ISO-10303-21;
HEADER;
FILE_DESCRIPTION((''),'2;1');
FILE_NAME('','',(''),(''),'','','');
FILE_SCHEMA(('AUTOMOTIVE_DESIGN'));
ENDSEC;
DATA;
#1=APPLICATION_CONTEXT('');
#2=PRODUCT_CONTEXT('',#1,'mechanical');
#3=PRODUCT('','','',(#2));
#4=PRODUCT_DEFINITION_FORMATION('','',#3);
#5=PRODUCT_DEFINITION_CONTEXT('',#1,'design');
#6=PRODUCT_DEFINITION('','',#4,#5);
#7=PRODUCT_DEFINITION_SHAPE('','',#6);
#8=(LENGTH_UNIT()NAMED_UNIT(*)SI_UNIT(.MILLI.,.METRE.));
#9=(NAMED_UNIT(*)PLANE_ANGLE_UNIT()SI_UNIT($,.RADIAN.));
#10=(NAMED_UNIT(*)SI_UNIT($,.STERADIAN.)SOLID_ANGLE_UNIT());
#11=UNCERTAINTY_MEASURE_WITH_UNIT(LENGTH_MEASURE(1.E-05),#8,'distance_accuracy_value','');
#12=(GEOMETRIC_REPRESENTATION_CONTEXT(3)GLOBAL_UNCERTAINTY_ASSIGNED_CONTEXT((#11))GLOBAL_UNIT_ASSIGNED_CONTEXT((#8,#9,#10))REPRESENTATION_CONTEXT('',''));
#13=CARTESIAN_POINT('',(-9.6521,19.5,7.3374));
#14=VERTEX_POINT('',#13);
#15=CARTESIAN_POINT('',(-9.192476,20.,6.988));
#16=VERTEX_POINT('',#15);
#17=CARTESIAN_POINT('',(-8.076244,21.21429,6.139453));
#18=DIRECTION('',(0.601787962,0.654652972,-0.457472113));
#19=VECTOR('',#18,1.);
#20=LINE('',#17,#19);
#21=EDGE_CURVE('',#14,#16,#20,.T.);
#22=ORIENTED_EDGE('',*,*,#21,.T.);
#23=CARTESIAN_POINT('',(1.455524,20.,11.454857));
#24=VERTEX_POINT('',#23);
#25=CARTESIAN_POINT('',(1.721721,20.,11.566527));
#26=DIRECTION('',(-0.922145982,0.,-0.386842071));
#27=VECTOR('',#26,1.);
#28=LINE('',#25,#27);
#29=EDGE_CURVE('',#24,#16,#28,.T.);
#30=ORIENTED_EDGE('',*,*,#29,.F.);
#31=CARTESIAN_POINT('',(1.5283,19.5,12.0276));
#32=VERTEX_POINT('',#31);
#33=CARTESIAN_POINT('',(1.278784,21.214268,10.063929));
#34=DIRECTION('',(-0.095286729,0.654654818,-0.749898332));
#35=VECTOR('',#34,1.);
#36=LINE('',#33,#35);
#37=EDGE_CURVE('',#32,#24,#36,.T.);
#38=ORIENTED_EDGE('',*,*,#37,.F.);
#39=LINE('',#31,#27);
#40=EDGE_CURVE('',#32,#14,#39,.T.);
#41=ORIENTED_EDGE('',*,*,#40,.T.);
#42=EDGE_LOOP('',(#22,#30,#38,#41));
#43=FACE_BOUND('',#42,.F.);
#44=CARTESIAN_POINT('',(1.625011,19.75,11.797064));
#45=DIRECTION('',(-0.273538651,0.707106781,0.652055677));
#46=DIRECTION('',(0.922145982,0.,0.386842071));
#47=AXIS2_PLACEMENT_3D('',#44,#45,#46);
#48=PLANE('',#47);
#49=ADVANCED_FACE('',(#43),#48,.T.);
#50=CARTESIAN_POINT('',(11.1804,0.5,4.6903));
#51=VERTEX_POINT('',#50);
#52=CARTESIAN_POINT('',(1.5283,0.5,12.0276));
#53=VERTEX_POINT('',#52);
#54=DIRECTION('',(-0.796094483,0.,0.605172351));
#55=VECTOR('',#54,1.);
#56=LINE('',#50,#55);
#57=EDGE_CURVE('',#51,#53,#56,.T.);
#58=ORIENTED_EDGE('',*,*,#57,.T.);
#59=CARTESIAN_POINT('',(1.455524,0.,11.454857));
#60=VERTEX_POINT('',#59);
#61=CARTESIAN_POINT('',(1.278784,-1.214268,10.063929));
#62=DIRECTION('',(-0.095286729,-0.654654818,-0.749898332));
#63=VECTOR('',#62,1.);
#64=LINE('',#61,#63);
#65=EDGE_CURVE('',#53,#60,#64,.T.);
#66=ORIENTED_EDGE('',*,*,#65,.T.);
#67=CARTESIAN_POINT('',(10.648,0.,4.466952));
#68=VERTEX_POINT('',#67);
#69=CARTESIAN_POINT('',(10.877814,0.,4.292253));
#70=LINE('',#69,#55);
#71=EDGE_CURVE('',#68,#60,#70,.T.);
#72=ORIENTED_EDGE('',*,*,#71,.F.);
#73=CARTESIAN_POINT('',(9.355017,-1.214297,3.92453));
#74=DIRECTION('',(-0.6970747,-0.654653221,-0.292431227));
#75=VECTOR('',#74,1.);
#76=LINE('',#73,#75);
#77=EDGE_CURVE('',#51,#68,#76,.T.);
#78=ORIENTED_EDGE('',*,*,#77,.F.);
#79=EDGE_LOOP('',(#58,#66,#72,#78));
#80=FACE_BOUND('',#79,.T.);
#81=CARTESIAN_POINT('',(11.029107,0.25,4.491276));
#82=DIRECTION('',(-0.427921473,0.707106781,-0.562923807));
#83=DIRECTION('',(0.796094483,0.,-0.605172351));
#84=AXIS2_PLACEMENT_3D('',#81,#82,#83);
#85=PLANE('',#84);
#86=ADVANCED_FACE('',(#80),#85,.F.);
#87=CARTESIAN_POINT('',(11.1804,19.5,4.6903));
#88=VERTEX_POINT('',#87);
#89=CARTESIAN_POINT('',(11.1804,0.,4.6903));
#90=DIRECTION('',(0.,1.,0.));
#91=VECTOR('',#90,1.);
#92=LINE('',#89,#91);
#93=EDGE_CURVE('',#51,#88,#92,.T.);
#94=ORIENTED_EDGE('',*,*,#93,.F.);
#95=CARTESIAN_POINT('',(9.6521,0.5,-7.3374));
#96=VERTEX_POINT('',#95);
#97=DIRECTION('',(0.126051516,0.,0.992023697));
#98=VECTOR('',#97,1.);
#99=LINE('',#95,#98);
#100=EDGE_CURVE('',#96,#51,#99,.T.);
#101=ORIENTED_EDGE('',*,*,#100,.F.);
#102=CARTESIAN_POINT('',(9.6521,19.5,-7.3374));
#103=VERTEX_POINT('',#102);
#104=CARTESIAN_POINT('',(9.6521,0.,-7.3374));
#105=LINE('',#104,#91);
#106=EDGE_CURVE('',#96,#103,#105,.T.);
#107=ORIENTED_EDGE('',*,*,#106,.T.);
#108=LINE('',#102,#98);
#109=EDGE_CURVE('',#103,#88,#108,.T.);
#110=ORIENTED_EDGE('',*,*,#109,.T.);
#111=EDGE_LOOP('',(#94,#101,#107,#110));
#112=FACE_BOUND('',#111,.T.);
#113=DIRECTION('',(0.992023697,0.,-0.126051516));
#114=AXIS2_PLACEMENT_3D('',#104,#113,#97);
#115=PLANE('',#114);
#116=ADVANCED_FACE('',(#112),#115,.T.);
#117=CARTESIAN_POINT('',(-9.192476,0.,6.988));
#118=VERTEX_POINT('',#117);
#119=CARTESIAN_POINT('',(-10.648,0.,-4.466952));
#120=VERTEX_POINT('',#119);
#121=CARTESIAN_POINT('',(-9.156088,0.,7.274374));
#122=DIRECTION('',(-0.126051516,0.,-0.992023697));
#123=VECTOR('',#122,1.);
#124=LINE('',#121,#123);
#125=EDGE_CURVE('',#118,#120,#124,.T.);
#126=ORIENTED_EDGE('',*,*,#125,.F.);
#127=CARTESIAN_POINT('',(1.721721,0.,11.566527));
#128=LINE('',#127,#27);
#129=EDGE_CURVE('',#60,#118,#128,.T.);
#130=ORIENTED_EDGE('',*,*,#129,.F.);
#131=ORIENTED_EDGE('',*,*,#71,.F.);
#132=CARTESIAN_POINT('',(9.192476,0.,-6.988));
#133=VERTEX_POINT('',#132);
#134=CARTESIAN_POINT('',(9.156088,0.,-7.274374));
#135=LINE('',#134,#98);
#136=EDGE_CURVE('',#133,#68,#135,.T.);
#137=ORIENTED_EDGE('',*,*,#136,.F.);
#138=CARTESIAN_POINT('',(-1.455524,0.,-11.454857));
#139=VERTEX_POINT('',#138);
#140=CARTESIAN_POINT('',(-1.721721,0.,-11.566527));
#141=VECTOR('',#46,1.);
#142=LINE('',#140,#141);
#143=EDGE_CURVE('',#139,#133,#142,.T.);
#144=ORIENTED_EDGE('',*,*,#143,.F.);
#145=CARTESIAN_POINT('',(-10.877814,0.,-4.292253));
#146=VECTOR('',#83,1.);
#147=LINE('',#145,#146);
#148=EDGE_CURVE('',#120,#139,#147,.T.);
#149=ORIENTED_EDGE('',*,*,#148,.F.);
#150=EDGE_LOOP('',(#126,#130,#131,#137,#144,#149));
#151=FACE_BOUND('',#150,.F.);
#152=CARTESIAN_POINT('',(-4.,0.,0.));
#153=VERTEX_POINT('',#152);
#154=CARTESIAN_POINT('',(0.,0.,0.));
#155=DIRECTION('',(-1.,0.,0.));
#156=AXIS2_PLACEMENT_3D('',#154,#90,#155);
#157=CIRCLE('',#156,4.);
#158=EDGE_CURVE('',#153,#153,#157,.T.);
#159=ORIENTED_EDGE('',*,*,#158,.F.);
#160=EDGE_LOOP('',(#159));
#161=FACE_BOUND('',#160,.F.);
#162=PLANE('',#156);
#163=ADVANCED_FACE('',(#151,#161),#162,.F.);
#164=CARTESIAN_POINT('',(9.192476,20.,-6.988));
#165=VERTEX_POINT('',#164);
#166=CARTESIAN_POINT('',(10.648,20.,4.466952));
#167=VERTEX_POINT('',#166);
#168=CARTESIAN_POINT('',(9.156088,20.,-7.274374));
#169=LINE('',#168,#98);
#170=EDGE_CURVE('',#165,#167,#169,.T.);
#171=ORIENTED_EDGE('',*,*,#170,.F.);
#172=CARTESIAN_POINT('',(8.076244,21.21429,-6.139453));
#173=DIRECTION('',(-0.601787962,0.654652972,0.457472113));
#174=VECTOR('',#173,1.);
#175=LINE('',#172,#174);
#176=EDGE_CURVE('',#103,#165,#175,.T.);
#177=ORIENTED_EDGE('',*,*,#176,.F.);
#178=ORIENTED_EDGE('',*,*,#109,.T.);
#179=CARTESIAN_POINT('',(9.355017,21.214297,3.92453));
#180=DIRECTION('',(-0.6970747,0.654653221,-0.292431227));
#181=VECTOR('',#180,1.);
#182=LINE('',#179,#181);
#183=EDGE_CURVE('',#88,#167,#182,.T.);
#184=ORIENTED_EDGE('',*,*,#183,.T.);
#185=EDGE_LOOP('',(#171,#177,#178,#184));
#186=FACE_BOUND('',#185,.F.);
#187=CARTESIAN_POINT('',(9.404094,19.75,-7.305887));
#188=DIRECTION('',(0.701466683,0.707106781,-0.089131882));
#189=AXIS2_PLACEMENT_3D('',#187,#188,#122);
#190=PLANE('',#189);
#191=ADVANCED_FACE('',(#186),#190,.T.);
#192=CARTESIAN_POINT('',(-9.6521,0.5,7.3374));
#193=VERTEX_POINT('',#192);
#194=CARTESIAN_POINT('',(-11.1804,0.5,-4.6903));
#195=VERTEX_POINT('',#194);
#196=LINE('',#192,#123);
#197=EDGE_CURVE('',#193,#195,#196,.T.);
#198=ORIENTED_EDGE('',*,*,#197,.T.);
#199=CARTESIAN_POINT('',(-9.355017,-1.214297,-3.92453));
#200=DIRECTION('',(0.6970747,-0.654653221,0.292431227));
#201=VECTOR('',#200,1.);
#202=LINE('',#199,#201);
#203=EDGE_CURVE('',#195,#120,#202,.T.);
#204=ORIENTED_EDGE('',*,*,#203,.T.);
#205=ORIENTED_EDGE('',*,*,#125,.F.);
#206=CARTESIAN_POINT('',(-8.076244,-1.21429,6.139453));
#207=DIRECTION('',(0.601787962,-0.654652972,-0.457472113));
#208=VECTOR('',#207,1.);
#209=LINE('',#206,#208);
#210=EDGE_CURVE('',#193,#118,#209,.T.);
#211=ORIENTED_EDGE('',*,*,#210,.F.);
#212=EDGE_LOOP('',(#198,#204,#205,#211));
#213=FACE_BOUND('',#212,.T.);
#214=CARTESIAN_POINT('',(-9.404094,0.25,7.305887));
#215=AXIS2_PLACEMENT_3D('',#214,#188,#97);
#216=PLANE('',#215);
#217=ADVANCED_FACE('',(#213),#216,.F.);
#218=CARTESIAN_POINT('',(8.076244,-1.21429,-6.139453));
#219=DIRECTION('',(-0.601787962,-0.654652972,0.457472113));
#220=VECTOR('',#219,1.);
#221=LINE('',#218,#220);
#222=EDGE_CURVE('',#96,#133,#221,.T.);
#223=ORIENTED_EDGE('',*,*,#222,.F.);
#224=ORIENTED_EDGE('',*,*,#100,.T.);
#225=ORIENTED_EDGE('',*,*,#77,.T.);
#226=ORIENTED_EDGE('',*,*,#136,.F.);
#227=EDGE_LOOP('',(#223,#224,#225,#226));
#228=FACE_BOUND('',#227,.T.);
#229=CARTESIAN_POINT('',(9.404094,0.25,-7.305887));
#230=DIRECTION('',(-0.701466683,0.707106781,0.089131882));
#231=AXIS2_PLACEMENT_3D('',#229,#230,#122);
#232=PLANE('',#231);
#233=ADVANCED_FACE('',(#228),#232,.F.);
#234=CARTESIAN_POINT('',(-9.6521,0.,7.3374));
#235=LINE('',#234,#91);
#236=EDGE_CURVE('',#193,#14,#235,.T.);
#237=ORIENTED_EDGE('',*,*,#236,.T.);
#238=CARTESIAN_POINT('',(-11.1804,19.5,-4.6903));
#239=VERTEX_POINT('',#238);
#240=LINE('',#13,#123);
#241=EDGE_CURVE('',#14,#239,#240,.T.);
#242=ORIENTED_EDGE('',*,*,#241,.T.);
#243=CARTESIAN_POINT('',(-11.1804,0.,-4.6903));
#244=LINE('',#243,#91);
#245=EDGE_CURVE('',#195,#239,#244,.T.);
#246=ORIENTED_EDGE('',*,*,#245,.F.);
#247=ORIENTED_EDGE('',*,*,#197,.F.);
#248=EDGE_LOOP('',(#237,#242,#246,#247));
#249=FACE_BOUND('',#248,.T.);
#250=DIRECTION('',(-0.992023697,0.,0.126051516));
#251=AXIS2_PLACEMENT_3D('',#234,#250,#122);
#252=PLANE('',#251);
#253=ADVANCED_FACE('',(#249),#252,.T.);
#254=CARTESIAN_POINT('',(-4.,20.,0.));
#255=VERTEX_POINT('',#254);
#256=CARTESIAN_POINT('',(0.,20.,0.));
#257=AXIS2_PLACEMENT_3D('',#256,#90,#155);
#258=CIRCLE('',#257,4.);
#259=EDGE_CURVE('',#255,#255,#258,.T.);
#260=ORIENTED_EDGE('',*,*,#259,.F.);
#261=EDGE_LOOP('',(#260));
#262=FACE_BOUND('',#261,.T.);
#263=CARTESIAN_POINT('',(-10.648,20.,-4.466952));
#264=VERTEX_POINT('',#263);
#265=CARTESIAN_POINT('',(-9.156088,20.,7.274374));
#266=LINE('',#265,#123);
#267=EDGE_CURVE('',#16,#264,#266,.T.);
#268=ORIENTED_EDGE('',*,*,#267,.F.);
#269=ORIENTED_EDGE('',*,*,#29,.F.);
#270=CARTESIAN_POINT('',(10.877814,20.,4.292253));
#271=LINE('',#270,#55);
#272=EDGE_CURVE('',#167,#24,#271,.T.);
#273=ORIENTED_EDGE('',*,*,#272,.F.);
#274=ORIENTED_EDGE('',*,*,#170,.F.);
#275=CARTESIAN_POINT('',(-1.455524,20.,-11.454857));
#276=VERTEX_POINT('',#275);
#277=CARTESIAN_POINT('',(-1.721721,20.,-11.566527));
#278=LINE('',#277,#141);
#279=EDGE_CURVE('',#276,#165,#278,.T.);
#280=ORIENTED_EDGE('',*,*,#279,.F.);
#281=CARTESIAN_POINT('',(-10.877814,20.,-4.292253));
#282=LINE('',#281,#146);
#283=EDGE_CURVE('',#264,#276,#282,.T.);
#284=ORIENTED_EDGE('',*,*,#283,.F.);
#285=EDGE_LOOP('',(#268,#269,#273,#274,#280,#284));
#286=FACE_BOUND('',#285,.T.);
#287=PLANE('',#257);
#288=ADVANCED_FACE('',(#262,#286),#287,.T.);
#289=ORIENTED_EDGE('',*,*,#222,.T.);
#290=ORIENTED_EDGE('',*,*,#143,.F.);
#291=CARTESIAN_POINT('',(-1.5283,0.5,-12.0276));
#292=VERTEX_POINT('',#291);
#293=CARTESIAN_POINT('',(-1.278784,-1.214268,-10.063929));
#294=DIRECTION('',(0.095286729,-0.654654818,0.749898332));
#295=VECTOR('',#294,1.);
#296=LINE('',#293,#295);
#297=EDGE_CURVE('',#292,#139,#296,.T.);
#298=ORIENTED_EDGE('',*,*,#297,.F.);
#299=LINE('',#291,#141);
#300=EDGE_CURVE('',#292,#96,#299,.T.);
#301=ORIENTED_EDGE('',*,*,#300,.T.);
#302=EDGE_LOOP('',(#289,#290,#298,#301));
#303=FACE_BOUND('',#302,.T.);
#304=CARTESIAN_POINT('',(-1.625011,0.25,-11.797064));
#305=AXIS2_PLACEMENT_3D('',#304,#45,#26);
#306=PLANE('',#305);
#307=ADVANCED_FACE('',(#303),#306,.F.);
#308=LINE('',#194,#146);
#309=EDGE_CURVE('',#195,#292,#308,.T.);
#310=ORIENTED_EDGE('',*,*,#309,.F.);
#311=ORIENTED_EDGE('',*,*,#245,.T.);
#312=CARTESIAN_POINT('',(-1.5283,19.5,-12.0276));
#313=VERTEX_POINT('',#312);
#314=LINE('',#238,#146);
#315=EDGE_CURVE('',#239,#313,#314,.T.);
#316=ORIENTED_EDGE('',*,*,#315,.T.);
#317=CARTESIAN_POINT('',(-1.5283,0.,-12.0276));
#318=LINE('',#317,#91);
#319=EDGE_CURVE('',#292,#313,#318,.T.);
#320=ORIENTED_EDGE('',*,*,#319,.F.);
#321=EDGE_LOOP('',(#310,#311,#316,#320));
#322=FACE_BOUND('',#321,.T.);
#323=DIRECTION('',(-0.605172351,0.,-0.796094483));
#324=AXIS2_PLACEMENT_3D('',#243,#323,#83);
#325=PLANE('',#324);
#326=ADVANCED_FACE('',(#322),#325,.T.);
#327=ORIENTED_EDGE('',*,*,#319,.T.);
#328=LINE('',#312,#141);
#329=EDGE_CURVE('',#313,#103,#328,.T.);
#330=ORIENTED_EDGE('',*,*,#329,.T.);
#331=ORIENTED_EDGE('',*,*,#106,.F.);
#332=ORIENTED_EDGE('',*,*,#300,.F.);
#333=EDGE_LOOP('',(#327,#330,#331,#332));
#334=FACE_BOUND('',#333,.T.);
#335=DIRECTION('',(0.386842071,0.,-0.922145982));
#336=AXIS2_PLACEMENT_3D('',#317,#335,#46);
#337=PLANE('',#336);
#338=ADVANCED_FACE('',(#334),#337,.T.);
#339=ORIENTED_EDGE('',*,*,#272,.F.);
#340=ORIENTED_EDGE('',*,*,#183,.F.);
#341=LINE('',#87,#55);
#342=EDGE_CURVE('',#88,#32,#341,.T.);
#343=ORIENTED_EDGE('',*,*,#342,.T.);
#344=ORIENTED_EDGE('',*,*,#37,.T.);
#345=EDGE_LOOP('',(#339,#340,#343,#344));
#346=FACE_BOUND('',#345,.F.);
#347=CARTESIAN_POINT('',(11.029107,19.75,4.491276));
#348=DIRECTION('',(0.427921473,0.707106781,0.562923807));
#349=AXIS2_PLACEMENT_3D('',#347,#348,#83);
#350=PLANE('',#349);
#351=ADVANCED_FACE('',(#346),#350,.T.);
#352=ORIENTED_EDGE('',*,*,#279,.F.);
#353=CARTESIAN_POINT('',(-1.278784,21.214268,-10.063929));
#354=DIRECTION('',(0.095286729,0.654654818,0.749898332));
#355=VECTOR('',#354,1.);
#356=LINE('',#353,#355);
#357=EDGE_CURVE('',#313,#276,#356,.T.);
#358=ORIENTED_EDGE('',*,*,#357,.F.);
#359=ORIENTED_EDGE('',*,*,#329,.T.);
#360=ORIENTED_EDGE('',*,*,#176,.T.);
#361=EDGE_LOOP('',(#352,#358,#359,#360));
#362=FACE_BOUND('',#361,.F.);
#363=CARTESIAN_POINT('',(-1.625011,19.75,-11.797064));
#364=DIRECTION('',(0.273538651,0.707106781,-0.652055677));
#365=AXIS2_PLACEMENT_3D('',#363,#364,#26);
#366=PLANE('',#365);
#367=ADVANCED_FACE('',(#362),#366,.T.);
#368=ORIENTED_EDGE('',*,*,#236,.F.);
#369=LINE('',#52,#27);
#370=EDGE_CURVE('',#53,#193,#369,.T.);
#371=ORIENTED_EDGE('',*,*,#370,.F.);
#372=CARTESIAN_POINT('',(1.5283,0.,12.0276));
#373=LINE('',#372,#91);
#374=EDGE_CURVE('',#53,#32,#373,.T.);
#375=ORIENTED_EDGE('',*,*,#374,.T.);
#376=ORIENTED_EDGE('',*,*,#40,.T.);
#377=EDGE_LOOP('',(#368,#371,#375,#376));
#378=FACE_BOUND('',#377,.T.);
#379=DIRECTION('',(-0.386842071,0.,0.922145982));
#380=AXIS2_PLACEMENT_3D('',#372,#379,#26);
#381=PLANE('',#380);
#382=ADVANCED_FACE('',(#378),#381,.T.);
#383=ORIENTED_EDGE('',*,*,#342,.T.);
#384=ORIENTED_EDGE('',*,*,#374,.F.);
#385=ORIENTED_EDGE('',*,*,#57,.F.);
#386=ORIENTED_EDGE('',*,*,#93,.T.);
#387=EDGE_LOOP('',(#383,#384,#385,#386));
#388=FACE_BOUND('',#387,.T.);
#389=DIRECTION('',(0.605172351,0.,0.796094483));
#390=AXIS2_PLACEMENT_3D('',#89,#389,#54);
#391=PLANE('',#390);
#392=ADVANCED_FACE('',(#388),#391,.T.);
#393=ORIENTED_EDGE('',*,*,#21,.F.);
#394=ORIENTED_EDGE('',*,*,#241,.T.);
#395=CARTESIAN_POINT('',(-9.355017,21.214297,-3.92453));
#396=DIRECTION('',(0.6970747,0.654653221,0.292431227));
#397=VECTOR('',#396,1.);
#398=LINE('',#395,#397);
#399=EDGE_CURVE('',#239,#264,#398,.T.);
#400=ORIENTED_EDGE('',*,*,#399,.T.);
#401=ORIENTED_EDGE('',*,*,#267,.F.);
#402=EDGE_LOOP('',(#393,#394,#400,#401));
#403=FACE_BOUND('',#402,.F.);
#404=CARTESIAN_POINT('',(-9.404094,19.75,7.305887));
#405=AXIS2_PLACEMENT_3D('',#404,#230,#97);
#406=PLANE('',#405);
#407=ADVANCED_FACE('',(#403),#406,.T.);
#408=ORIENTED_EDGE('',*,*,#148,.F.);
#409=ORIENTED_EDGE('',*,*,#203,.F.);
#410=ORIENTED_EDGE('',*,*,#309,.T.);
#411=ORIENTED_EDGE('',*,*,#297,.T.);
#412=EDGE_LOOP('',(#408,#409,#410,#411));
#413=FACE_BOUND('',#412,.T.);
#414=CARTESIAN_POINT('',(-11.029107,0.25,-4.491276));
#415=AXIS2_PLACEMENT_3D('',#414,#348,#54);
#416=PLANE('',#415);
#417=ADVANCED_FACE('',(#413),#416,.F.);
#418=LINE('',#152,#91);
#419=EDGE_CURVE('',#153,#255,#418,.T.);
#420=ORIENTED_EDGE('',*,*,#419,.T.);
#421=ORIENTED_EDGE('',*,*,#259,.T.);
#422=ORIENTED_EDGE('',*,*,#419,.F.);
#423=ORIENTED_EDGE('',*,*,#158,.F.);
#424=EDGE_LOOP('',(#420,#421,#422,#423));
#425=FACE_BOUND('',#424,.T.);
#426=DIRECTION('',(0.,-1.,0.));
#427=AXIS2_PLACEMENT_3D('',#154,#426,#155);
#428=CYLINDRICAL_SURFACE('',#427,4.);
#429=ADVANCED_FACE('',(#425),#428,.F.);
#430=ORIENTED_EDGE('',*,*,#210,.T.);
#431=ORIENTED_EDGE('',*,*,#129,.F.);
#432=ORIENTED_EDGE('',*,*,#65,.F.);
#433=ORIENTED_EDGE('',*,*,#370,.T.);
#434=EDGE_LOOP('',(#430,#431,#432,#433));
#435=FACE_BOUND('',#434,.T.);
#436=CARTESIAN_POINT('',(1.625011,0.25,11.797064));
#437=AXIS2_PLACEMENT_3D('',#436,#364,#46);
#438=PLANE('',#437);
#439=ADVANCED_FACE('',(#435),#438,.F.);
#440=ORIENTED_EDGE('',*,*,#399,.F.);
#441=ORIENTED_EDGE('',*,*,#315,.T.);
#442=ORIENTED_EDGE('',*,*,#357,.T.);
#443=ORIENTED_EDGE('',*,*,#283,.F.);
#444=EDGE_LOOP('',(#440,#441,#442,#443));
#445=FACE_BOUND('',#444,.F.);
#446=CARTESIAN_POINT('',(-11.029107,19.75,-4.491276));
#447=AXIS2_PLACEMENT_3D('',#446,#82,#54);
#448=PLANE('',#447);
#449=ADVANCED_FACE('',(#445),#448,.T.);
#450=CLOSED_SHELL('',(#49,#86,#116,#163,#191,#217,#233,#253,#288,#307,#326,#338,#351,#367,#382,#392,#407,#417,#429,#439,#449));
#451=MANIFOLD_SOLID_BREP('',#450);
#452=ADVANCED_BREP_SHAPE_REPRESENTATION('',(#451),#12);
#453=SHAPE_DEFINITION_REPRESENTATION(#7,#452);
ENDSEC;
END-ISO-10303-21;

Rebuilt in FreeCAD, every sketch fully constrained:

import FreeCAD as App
import Part
import Sketcher

V = App.Vector


def edges_at(feature, points):
    """Names of the edges that pass closest to the given points."""
    edges = feature.Shape.Edges
    near = lambda p: min(range(len(edges)), key=lambda i: edges[i].distToShape(Part.Vertex(*p))[0])
    return sorted({f"Edge{near(p) + 1}" for p in points})


def add_polygon(sketch, points):
    """Adds a closed chain of lines whose ends are joined by coincident constraints."""
    first, n = sketch.GeometryCount, len(points)
    for a, b in zip(points, points[1:] + points[:1]):
        sketch.addGeometry(Part.LineSegment(App.Vector(*a, 0), App.Vector(*b, 0)), False)
    for i in range(n):
        sketch.addConstraint(Sketcher.Constraint("Coincident", first + i, 2, first + (i + 1) % n, 1))

doc = App.newDocument("Part")
body = doc.addObject("PartDesign::Body", "Body")

# Sketch on XZ plane
sketch1 = body.newObject("Sketcher::SketchObject", "Sketch")
sketch1.AttachmentSupport = (doc.getObject("XZ_Plane"), [""])
sketch1.MapMode = "FlatFace"
add_polygon(sketch1, [(-1.5, -12), (-11.2, -4.7), (-9.7, 7.3), (1.5, 12), (11.2, 4.7), (9.7, -7.3)])  # lines 0-5
sketch1.addGeometry(Part.Circle(V(0, 0, 0), V(0, 0, 1), 4), False)  # 6
sketch1.addConstraint(Sketcher.Constraint("Coincident", 6, 3, -1, 1))
sketch1.addConstraint(Sketcher.Constraint("Symmetric", 0, 2, 3, 2, -1, 1))
sketch1.addConstraint(Sketcher.Constraint("Symmetric", 1, 2, 4, 2, -1, 1))
sketch1.addConstraint(Sketcher.Constraint("Symmetric", 2, 2, 5, 2, -1, 1))
sketch1.addConstraint(Sketcher.Constraint("Equal", 0, 1))
sketch1.addConstraint(Sketcher.Constraint("Equal", 1, 2))
sketch1.addConstraint(Sketcher.Constraint("Diameter", 6, 8.0))
sketch1.addConstraint(Sketcher.Constraint("DistanceX", 1, 2, -1, 1, 9.652))
sketch1.addConstraint(Sketcher.Constraint("DistanceY", 0, 2, 2, 2, 16.718))
sketch1.addConstraint(Sketcher.Constraint("DistanceX", 2, 2, 3, 2, 9.652))
sketch1.addConstraint(Sketcher.Constraint("DistanceY", 3, 2, 1, 2, 2.647))
pad1 = body.newObject("PartDesign::Pad", "Pad")
pad1.Profile = sketch1
pad1.Length = 20
pad1.Reversed = True
doc.recompute()

chamfer = body.newObject("PartDesign::Chamfer", "Chamfer")
chamfer.Base = (pad1, edges_at(pad1, [
    (-4.062, 0, 9.682),
    (6.354, 0, 8.359),
    (10.416, 0, -1.323),
    (4.062, 0, -9.682),
    (-6.354, 0, -8.359),
    (-10.416, 0, 1.323),
    (-4.062, 20, 9.682),
    (-10.416, 20, 1.323),
    (6.354, 20, 8.359),
    (-6.354, 20, -8.359),
    (4.062, 20, -9.682),
    (10.416, 20, -1.323),
]))
chamfer.Size = 0.5

doc.recompute()
